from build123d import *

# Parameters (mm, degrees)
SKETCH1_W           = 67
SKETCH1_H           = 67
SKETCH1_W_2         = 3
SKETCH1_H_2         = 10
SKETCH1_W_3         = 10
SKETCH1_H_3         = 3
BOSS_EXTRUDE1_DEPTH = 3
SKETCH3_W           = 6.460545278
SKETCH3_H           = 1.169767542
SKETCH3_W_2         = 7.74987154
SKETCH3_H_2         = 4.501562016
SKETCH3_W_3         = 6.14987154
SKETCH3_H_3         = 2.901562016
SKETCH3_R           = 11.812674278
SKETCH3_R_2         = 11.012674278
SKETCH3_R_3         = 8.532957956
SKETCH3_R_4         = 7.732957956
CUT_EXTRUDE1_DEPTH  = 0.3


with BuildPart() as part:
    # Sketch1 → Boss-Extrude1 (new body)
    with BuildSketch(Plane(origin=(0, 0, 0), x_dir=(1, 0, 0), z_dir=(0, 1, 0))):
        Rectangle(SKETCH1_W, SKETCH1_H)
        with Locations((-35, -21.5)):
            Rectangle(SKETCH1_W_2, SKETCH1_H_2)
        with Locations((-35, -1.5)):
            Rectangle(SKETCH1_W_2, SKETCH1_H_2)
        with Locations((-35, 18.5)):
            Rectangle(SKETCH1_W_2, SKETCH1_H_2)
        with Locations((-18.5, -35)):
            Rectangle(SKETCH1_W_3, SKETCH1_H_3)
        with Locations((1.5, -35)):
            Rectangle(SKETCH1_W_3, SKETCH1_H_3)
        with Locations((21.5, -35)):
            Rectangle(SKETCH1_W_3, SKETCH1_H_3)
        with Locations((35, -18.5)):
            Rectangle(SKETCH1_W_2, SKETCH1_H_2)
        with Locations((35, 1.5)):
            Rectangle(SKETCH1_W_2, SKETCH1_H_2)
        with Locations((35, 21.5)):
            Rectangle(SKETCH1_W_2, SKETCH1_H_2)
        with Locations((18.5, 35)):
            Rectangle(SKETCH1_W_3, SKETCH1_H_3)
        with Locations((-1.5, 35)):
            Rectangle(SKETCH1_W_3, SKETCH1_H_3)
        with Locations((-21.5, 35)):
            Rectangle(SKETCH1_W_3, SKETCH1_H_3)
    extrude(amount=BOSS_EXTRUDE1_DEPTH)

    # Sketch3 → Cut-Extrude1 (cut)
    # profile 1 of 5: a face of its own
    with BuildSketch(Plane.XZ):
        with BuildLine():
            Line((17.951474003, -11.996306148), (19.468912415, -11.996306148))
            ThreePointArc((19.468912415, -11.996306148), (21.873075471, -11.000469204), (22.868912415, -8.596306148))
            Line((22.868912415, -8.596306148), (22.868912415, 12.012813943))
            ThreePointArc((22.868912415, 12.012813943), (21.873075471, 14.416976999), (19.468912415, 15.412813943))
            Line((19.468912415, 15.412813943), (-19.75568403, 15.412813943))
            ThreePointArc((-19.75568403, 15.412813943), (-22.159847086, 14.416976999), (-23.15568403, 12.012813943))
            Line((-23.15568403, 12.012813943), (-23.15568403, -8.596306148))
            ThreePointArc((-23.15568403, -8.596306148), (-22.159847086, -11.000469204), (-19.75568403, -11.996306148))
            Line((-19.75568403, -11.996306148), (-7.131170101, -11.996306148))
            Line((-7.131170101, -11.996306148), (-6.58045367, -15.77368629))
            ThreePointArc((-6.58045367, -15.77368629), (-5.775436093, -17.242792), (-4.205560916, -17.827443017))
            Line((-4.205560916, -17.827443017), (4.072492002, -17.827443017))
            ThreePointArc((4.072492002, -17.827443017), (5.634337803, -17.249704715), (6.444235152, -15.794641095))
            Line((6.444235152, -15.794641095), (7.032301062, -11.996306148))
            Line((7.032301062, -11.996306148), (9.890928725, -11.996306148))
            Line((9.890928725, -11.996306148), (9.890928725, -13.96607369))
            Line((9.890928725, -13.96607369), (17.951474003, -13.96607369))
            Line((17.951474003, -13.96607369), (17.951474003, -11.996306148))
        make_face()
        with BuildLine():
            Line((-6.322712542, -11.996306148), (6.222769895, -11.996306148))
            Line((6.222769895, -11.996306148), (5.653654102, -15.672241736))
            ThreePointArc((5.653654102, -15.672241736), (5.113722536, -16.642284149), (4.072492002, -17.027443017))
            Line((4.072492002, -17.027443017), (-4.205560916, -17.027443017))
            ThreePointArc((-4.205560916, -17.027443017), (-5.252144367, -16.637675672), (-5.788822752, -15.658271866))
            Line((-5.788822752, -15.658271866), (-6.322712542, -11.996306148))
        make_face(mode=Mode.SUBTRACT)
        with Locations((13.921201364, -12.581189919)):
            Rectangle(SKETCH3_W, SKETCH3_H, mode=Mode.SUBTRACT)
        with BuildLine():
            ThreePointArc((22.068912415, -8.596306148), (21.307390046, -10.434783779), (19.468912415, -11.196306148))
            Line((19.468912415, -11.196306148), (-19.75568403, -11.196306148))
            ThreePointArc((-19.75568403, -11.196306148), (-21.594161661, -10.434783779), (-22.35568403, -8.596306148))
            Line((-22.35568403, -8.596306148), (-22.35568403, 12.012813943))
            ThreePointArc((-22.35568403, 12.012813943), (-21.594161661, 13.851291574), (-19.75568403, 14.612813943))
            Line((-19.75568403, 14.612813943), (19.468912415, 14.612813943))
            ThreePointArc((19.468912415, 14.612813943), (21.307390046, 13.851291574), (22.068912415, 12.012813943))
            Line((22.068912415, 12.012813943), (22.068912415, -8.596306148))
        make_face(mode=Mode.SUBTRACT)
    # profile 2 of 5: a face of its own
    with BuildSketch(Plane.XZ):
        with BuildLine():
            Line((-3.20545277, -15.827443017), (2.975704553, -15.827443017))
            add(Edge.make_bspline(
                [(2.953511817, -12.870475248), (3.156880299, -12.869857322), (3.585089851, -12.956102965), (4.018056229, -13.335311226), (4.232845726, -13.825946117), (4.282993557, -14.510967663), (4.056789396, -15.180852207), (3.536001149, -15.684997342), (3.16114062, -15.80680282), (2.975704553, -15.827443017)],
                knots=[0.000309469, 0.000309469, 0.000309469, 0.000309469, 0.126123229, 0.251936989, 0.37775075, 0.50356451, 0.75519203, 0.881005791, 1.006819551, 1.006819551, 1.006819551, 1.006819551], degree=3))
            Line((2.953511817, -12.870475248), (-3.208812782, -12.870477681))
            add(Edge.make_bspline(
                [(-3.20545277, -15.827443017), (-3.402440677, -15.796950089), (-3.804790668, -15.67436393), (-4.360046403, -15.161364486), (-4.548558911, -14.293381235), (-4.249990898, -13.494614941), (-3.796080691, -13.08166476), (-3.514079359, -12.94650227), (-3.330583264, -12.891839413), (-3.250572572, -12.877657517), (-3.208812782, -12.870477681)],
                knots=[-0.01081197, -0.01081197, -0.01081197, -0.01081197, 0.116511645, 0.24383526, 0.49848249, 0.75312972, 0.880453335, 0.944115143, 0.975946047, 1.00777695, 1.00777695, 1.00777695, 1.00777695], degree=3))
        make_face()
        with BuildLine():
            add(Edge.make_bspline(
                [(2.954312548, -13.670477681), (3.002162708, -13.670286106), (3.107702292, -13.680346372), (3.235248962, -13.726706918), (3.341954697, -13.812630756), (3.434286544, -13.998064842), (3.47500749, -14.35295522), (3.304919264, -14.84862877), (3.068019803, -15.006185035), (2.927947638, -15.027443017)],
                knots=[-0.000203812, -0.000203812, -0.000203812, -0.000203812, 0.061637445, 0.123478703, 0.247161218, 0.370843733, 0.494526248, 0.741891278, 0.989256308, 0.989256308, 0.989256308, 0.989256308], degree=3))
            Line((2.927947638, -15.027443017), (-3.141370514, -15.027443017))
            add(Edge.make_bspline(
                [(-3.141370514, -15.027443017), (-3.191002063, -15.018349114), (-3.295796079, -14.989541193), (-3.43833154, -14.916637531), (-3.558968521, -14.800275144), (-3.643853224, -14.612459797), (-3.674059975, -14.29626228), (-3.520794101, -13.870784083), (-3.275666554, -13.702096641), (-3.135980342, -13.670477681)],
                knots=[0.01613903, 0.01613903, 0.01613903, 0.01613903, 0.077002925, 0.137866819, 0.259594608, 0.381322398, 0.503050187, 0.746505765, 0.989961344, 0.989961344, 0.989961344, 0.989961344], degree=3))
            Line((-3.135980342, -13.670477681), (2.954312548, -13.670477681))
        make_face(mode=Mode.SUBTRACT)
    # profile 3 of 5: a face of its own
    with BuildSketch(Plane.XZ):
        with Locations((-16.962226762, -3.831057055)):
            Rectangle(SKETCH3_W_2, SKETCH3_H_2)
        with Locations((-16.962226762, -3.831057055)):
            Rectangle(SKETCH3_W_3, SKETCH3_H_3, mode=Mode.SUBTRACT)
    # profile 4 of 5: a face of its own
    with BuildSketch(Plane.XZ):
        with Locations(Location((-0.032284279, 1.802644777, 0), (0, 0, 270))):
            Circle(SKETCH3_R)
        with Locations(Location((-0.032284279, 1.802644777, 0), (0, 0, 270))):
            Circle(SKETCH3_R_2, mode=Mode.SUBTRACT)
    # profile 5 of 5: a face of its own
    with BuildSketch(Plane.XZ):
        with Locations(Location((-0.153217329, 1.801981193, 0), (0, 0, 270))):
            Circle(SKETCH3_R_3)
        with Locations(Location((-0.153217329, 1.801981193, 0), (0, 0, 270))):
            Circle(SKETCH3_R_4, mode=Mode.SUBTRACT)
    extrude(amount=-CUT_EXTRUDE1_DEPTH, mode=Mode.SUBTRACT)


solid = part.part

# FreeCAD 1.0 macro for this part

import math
import FreeCAD as App
import Part
import Sketcher

doc = App.newDocument("Part")
body = doc.addObject("PartDesign::Body", "Body")

sketch1 = doc.addObject("Sketcher::SketchObject", "Sketch")
body.addObject(sketch1)
sketch1.AttachmentSupport = (doc.XZ_Plane, [""])
sketch1.MapMode = "FlatFace"
sketch1.addGeometry([
    Part.LineSegment(App.Vector(-33.5, 26.5, 0), App.Vector(-33.5, 33.5, 0)),
    Part.LineSegment(App.Vector(-33.5, 33.5, 0), App.Vector(-23.5, 33.5, 0)),
    Part.LineSegment(App.Vector(-23.5, 33.5, 0), App.Vector(-23.5, 36.5, 0)),
    Part.LineSegment(App.Vector(-23.5, 36.5, 0), App.Vector(-13.5, 36.5, 0)),
    Part.LineSegment(App.Vector(-13.5, 36.5, 0), App.Vector(-13.5, 33.5, 0)),
    Part.LineSegment(App.Vector(-13.5, 33.5, 0), App.Vector(-3.5, 33.5, 0)),
    Part.LineSegment(App.Vector(-3.5, 33.5, 0), App.Vector(-3.5, 36.5, 0)),
    Part.LineSegment(App.Vector(-3.5, 36.5, 0), App.Vector(6.5, 36.5, 0)),
    Part.LineSegment(App.Vector(6.5, 36.5, 0), App.Vector(6.5, 33.5, 0)),
    Part.LineSegment(App.Vector(6.5, 33.5, 0), App.Vector(16.5, 33.5, 0)),
    Part.LineSegment(App.Vector(16.5, 33.5, 0), App.Vector(16.5, 36.5, 0)),
    Part.LineSegment(App.Vector(16.5, 36.5, 0), App.Vector(26.5, 36.5, 0)),
    Part.LineSegment(App.Vector(26.5, 36.5, 0), App.Vector(26.5, 33.5, 0)),
    Part.LineSegment(App.Vector(26.5, 33.5, 0), App.Vector(33.5, 33.5, 0)),
    Part.LineSegment(App.Vector(33.5, 33.5, 0), App.Vector(33.5, 23.5, 0)),
    Part.LineSegment(App.Vector(33.5, 23.5, 0), App.Vector(36.5, 23.5, 0)),
    Part.LineSegment(App.Vector(36.5, 23.5, 0), App.Vector(36.5, 13.5, 0)),
    Part.LineSegment(App.Vector(36.5, 13.5, 0), App.Vector(33.5, 13.5, 0)),
    Part.LineSegment(App.Vector(33.5, 13.5, 0), App.Vector(33.5, 3.5, 0)),
    Part.LineSegment(App.Vector(33.5, 3.5, 0), App.Vector(36.5, 3.5, 0)),
    Part.LineSegment(App.Vector(36.5, 3.5, 0), App.Vector(36.5, -6.5, 0)),
    Part.LineSegment(App.Vector(36.5, -6.5, 0), App.Vector(33.5, -6.5, 0)),
    Part.LineSegment(App.Vector(33.5, -6.5, 0), App.Vector(33.5, -16.5, 0)),
    Part.LineSegment(App.Vector(33.5, -16.5, 0), App.Vector(36.5, -16.5, 0)),
    Part.LineSegment(App.Vector(36.5, -16.5, 0), App.Vector(36.5, -26.5, 0)),
    Part.LineSegment(App.Vector(36.5, -26.5, 0), App.Vector(33.5, -26.5, 0)),
    Part.LineSegment(App.Vector(33.5, -26.5, 0), App.Vector(33.5, -33.5, 0)),
    Part.LineSegment(App.Vector(33.5, -33.5, 0), App.Vector(23.5, -33.5, 0)),
    Part.LineSegment(App.Vector(23.5, -33.5, 0), App.Vector(23.5, -36.5, 0)),
    Part.LineSegment(App.Vector(23.5, -36.5, 0), App.Vector(13.5, -36.5, 0)),
    Part.LineSegment(App.Vector(13.5, -36.5, 0), App.Vector(13.5, -33.5, 0)),
    Part.LineSegment(App.Vector(13.5, -33.5, 0), App.Vector(3.5, -33.5, 0)),
    Part.LineSegment(App.Vector(3.5, -33.5, 0), App.Vector(3.5, -36.5, 0)),
    Part.LineSegment(App.Vector(3.5, -36.5, 0), App.Vector(-6.5, -36.5, 0)),
    Part.LineSegment(App.Vector(-6.5, -36.5, 0), App.Vector(-6.5, -33.5, 0)),
    Part.LineSegment(App.Vector(-6.5, -33.5, 0), App.Vector(-16.5, -33.5, 0)),
    Part.LineSegment(App.Vector(-16.5, -33.5, 0), App.Vector(-16.5, -36.5, 0)),
    Part.LineSegment(App.Vector(-16.5, -36.5, 0), App.Vector(-26.5, -36.5, 0)),
    Part.LineSegment(App.Vector(-26.5, -36.5, 0), App.Vector(-26.5, -33.5, 0)),
    Part.LineSegment(App.Vector(-26.5, -33.5, 0), App.Vector(-33.5, -33.5, 0)),
    Part.LineSegment(App.Vector(-33.5, -33.5, 0), App.Vector(-33.5, -23.5, 0)),
    Part.LineSegment(App.Vector(-33.5, -23.5, 0), App.Vector(-36.5, -23.5, 0)),
    Part.LineSegment(App.Vector(-36.5, -23.5, 0), App.Vector(-36.5, -13.5, 0)),
    Part.LineSegment(App.Vector(-36.5, -13.5, 0), App.Vector(-33.5, -13.5, 0)),
    Part.LineSegment(App.Vector(-33.5, -13.5, 0), App.Vector(-33.5, -3.5, 0)),
    Part.LineSegment(App.Vector(-33.5, -3.5, 0), App.Vector(-36.5, -3.5, 0)),
    Part.LineSegment(App.Vector(-36.5, -3.5, 0), App.Vector(-36.5, 6.5, 0)),
    Part.LineSegment(App.Vector(-36.5, 6.5, 0), App.Vector(-33.5, 6.5, 0)),
    Part.LineSegment(App.Vector(-33.5, 6.5, 0), App.Vector(-33.5, 16.5, 0)),
    Part.LineSegment(App.Vector(-33.5, 16.5, 0), App.Vector(-36.5, 16.5, 0)),
    Part.LineSegment(App.Vector(-36.5, 16.5, 0), App.Vector(-36.5, 26.5, 0)),
    Part.LineSegment(App.Vector(-36.5, 26.5, 0), App.Vector(-33.5, 26.5, 0)),
], False)
sketch1.addConstraint([
    Sketcher.Constraint("Coincident", 0, 2, 1, 1),
    Sketcher.Constraint("Coincident", 1, 2, 2, 1),
    Sketcher.Constraint("Coincident", 2, 2, 3, 1),
    Sketcher.Constraint("Coincident", 3, 2, 4, 1),
    Sketcher.Constraint("Coincident", 4, 2, 5, 1),
    Sketcher.Constraint("Coincident", 5, 2, 6, 1),
    Sketcher.Constraint("Coincident", 6, 2, 7, 1),
    Sketcher.Constraint("Coincident", 7, 2, 8, 1),
    Sketcher.Constraint("Coincident", 8, 2, 9, 1),
    Sketcher.Constraint("Coincident", 9, 2, 10, 1),
    Sketcher.Constraint("Coincident", 10, 2, 11, 1),
    Sketcher.Constraint("Coincident", 11, 2, 12, 1),
    Sketcher.Constraint("Coincident", 12, 2, 13, 1),
    Sketcher.Constraint("Coincident", 13, 2, 14, 1),
    Sketcher.Constraint("Coincident", 14, 2, 15, 1),
    Sketcher.Constraint("Coincident", 15, 2, 16, 1),
    Sketcher.Constraint("Coincident", 16, 2, 17, 1),
    Sketcher.Constraint("Coincident", 17, 2, 18, 1),
    Sketcher.Constraint("Coincident", 18, 2, 19, 1),
    Sketcher.Constraint("Coincident", 19, 2, 20, 1),
    Sketcher.Constraint("Coincident", 20, 2, 21, 1),
    Sketcher.Constraint("Coincident", 21, 2, 22, 1),
    Sketcher.Constraint("Coincident", 22, 2, 23, 1),
    Sketcher.Constraint("Coincident", 23, 2, 24, 1),
    Sketcher.Constraint("Coincident", 24, 2, 25, 1),
    Sketcher.Constraint("Coincident", 25, 2, 26, 1),
    Sketcher.Constraint("Coincident", 26, 2, 27, 1),
    Sketcher.Constraint("Coincident", 27, 2, 28, 1),
    Sketcher.Constraint("Coincident", 28, 2, 29, 1),
    Sketcher.Constraint("Coincident", 29, 2, 30, 1),
    Sketcher.Constraint("Coincident", 30, 2, 31, 1),
    Sketcher.Constraint("Coincident", 31, 2, 32, 1),
    Sketcher.Constraint("Coincident", 32, 2, 33, 1),
    Sketcher.Constraint("Coincident", 33, 2, 34, 1),
    Sketcher.Constraint("Coincident", 34, 2, 35, 1),
    Sketcher.Constraint("Coincident", 35, 2, 36, 1),
    Sketcher.Constraint("Coincident", 36, 2, 37, 1),
    Sketcher.Constraint("Coincident", 37, 2, 38, 1),
    Sketcher.Constraint("Coincident", 38, 2, 39, 1),
    Sketcher.Constraint("Coincident", 39, 2, 40, 1),
    Sketcher.Constraint("Coincident", 40, 2, 41, 1),
    Sketcher.Constraint("Coincident", 41, 2, 42, 1),
    Sketcher.Constraint("Coincident", 42, 2, 43, 1),
    Sketcher.Constraint("Coincident", 43, 2, 44, 1),
    Sketcher.Constraint("Coincident", 44, 2, 45, 1),
    Sketcher.Constraint("Coincident", 45, 2, 46, 1),
    Sketcher.Constraint("Coincident", 46, 2, 47, 1),
    Sketcher.Constraint("Coincident", 47, 2, 48, 1),
    Sketcher.Constraint("Coincident", 48, 2, 49, 1),
    Sketcher.Constraint("Coincident", 49, 2, 50, 1),
    Sketcher.Constraint("Coincident", 50, 2, 51, 1),
    Sketcher.Constraint("Coincident", 51, 2, 0, 1),
    Sketcher.Constraint("Vertical", 0),
    Sketcher.Constraint("Horizontal", 1),
    Sketcher.Constraint("Vertical", 2),
    Sketcher.Constraint("Horizontal", 3),
    Sketcher.Constraint("Vertical", 4),
    Sketcher.Constraint("Horizontal", 5),
    Sketcher.Constraint("Vertical", 6),
    Sketcher.Constraint("Horizontal", 7),
    Sketcher.Constraint("Vertical", 8),
    Sketcher.Constraint("Horizontal", 9),
    Sketcher.Constraint("Vertical", 10),
    Sketcher.Constraint("Horizontal", 11),
    Sketcher.Constraint("Vertical", 12),
    Sketcher.Constraint("Horizontal", 13),
    Sketcher.Constraint("Vertical", 14),
    Sketcher.Constraint("Horizontal", 15),
    Sketcher.Constraint("Vertical", 16),
    Sketcher.Constraint("Horizontal", 17),
    Sketcher.Constraint("Vertical", 18),
    Sketcher.Constraint("Horizontal", 19),
    Sketcher.Constraint("Vertical", 20),
    Sketcher.Constraint("Horizontal", 21),
    Sketcher.Constraint("Vertical", 22),
    Sketcher.Constraint("Horizontal", 23),
    Sketcher.Constraint("Vertical", 24),
    Sketcher.Constraint("Horizontal", 25),
    Sketcher.Constraint("Vertical", 26),
    Sketcher.Constraint("Horizontal", 27),
    Sketcher.Constraint("Vertical", 28),
    Sketcher.Constraint("Horizontal", 29),
    Sketcher.Constraint("Vertical", 30),
    Sketcher.Constraint("Horizontal", 31),
    Sketcher.Constraint("Vertical", 32),
    Sketcher.Constraint("Horizontal", 33),
    Sketcher.Constraint("Vertical", 34),
    Sketcher.Constraint("Horizontal", 35),
    Sketcher.Constraint("Vertical", 36),
    Sketcher.Constraint("Horizontal", 37),
    Sketcher.Constraint("Vertical", 38),
    Sketcher.Constraint("Horizontal", 39),
    Sketcher.Constraint("Vertical", 40),
    Sketcher.Constraint("Horizontal", 41),
    Sketcher.Constraint("Vertical", 42),
    Sketcher.Constraint("Horizontal", 43),
    Sketcher.Constraint("Vertical", 44),
    Sketcher.Constraint("Horizontal", 45),
    Sketcher.Constraint("Vertical", 46),
    Sketcher.Constraint("Horizontal", 47),
    Sketcher.Constraint("Vertical", 48),
    Sketcher.Constraint("Horizontal", 49),
    Sketcher.Constraint("Vertical", 50),
    Sketcher.Constraint("Horizontal", 51),
    Sketcher.Constraint("Symmetric", 0, 2, 26, 2, -1, 1),
    Sketcher.Constraint("Symmetric", 2, 2, 28, 2, -1, 1),
    Sketcher.Constraint("Symmetric", 4, 2, 30, 2, -1, 1),
    Sketcher.Constraint("Symmetric", 6, 2, 32, 2, -1, 1),
    Sketcher.Constraint("Symmetric", 8, 2, 34, 2, -1, 1),
    Sketcher.Constraint("Symmetric", 10, 2, 36, 2, -1, 1),
    Sketcher.Constraint("Symmetric", 12, 2, 38, 2, -1, 1),
    Sketcher.Constraint("Symmetric", 14, 2, 40, 2, -1, 1),
    Sketcher.Constraint("Symmetric", 16, 2, 42, 2, -1, 1),
    Sketcher.Constraint("Symmetric", 18, 2, 44, 2, -1, 1),
    Sketcher.Constraint("Symmetric", 20, 2, 46, 2, -1, 1),
    Sketcher.Constraint("Symmetric", 22, 2, 48, 2, -1, 1),
    Sketcher.Constraint("Symmetric", 24, 2, 50, 2, -1, 1),
    Sketcher.Constraint("Symmetric", 0, 2, 13, 2, -2),
    Sketcher.Constraint("Horizontal", 1, 2, 4, 2),
    Sketcher.Constraint("Horizontal", 3, 2, 6, 2),
    Sketcher.Constraint("Horizontal", 5, 2, 8, 2),
    Sketcher.Constraint("Horizontal", 7, 2, 10, 2),
    Sketcher.Constraint("Vertical", 14, 2, 17, 2),
    Sketcher.Constraint("Vertical", 16, 2, 19, 2),
    Sketcher.Constraint("Vertical", 18, 2, 21, 2),
    Sketcher.Constraint("Vertical", 20, 2, 23, 2),
    Sketcher.Constraint("Equal", 1, 3),
    Sketcher.Constraint("Equal", 3, 5),
    Sketcher.Constraint("Equal", 5, 7),
    Sketcher.Constraint("Equal", 7, 9),
    Sketcher.Constraint("Equal", 9, 11),
    Sketcher.Constraint("Equal", 39, 0),
    Sketcher.Constraint("Equal", 51, 2),
    Sketcher.Constraint("Equal", 37, 14),
    Sketcher.Constraint("Equal", 14, 16),
    Sketcher.Constraint("Equal", 16, 18),
    Sketcher.Constraint("Equal", 18, 20),
    Sketcher.Constraint("Equal", 20, 22),
    Sketcher.Constraint("Equal", 22, 24),
    Sketcher.Constraint("DistanceX", 1, 1, 1, 2, 10.0),
    Sketcher.Constraint("DistanceX", 13, 1, 13, 2, 7.0),
    Sketcher.Constraint("DistanceX", 15, 1, 15, 2, 3.0),
])
pad1 = doc.addObject("PartDesign::Pad", "Pad")
body.addObject(pad1)
pad1.Profile = sketch1
pad1.Length = 3
pad1.Reversed = True

sketch2 = doc.addObject("Sketcher::SketchObject", "Sketch001")
body.addObject(sketch2)
sketch2.AttachmentSupport = (doc.XZ_Plane, [""])
sketch2.MapMode = "FlatFace"
sketch2.addGeometry([
    Part.LineSegment(App.Vector(17.951474, -11.996306, 0), App.Vector(19.468912, -11.996306, 0)),
    Part.ArcOfCircle(Part.Circle(App.Vector(19.468912, -8.596306, 0), App.Vector(0, 0, 1), 3.4), math.radians(-90), math.radians(0)),
    Part.LineSegment(App.Vector(22.868912, -8.596306, 0), App.Vector(22.868912, 12.012814, 0)),
    Part.ArcOfCircle(Part.Circle(App.Vector(19.468912, 12.012814, 0), App.Vector(0, 0, 1), 3.4), math.radians(0), math.radians(90)),
    Part.LineSegment(App.Vector(19.468912, 15.412814, 0), App.Vector(-19.755684, 15.412814, 0)),
    Part.ArcOfCircle(Part.Circle(App.Vector(-19.755684, 12.012814, 0), App.Vector(0, 0, 1), 3.4), math.radians(90), math.radians(180)),
    Part.LineSegment(App.Vector(-23.155684, 12.012814, 0), App.Vector(-23.155684, -8.596306, 0)),
    Part.ArcOfCircle(Part.Circle(App.Vector(-19.755684, -8.596306, 0), App.Vector(0, 0, 1), 3.4), math.radians(180), math.radians(270)),
    Part.LineSegment(App.Vector(-19.755684, -11.996306, 0), App.Vector(-7.13117, -11.996306, 0)),
    Part.LineSegment(App.Vector(-7.13117, -11.996306, 0), App.Vector(-6.580454, -15.773686, 0)),
    Part.ArcOfCircle(Part.Circle(App.Vector(-4.205561, -15.427443, 0), App.Vector(0, 0, 1), 2.4), math.radians(-171.705105), math.radians(-90)),
    Part.LineSegment(App.Vector(-4.205561, -17.827443, 0), App.Vector(4.072492, -17.827443, 0)),
    Part.ArcOfCircle(Part.Circle(App.Vector(4.072492, -15.427443, 0), App.Vector(0, 0, 1), 2.4), math.radians(-90), math.radians(-8.800775)),
    Part.LineSegment(App.Vector(6.444235, -15.794641, 0), App.Vector(7.032301, -11.996306, 0)),
    Part.LineSegment(App.Vector(7.032301, -11.996306, 0), App.Vector(9.890929, -11.996306, 0)),
    Part.LineSegment(App.Vector(9.890929, -11.996306, 0), App.Vector(9.890929, -13.966074, 0)),
    Part.LineSegment(App.Vector(9.890929, -13.966074, 0), App.Vector(17.951474, -13.966074, 0)),
    Part.LineSegment(App.Vector(17.951474, -13.966074, 0), App.Vector(17.951474, -11.996306, 0)),
    Part.LineSegment(App.Vector(-5.788823, -15.658272, 0), App.Vector(-6.322713, -11.996306, 0)),
    Part.LineSegment(App.Vector(-6.322713, -11.996306, 0), App.Vector(6.22277, -11.996306, 0)),
    Part.LineSegment(App.Vector(6.22277, -11.996306, 0), App.Vector(5.653654, -15.672242, 0)),
    Part.ArcOfCircle(Part.Circle(App.Vector(4.072492, -15.427443, 0), App.Vector(0, 0, 1), 1.6), math.radians(-90), math.radians(-8.800775)),
    Part.LineSegment(App.Vector(4.072492, -17.027443, 0), App.Vector(-4.205561, -17.027443, 0)),
    Part.ArcOfCircle(Part.Circle(App.Vector(-4.205561, -15.427443, 0), App.Vector(0, 0, 1), 1.6), math.radians(-171.705105), math.radians(-90)),
    Part.LineSegment(App.Vector(17.151474, -13.166074, 0), App.Vector(10.690929, -13.166074, 0)),
    Part.LineSegment(App.Vector(10.690929, -13.166074, 0), App.Vector(10.690929, -11.996306, 0)),
    Part.LineSegment(App.Vector(10.690929, -11.996306, 0), App.Vector(17.151474, -11.996306, 0)),
    Part.LineSegment(App.Vector(17.151474, -11.996306, 0), App.Vector(17.151474, -13.166074, 0)),
    Part.LineSegment(App.Vector(22.068912, 12.012814, 0), App.Vector(22.068912, -8.596306, 0)),
    Part.ArcOfCircle(Part.Circle(App.Vector(19.468912, -8.596306, 0), App.Vector(0, 0, 1), 2.6), math.radians(-90), math.radians(0)),
    Part.LineSegment(App.Vector(19.468912, -11.196306, 0), App.Vector(-19.755684, -11.196306, 0)),
    Part.ArcOfCircle(Part.Circle(App.Vector(-19.755684, -8.596306, 0), App.Vector(0, 0, 1), 2.6), math.radians(180), math.radians(270)),
    Part.LineSegment(App.Vector(-22.355684, -8.596306, 0), App.Vector(-22.355684, 12.012814, 0)),
    Part.ArcOfCircle(Part.Circle(App.Vector(-19.755684, 12.012814, 0), App.Vector(0, 0, 1), 2.6), math.radians(90), math.radians(180)),
    Part.LineSegment(App.Vector(-19.755684, 14.612814, 0), App.Vector(19.468912, 14.612814, 0)),
    Part.ArcOfCircle(Part.Circle(App.Vector(19.468912, 12.012814, 0), App.Vector(0, 0, 1), 2.6), math.radians(0), math.radians(90)),
    Part.LineSegment(App.Vector(-3.205453, -15.827443, 0), App.Vector(2.975705, -15.827443, 0)),
    Part.BSplineCurve([App.Vector(2.953512, -12.870475, 0), App.Vector(3.15688, -12.869857, 0), App.Vector(3.58509, -12.956103, 0), App.Vector(4.018056, -13.335311, 0), App.Vector(4.232846, -13.825946, 0), App.Vector(4.282994, -14.510968, 0), App.Vector(4.056789, -15.180852, 0), App.Vector(3.536001, -15.684997, 0), App.Vector(3.161141, -15.806803, 0), App.Vector(2.975705, -15.827443, 0)], [4, 1, 1, 1, 1, 1, 1, 4], [0.000309469, 0.126123229, 0.251936989, 0.37775075, 0.50356451, 0.75519203, 0.881005791, 1.006819551], False, 3, [1, 1, 1, 1, 1, 1, 1, 1, 1, 1], False),
    Part.LineSegment(App.Vector(2.953512, -12.870475, 0), App.Vector(-3.208813, -12.870478, 0)),
    Part.BSplineCurve([App.Vector(-3.205453, -15.827443, 0), App.Vector(-3.402441, -15.79695, 0), App.Vector(-3.804791, -15.674364, 0), App.Vector(-4.360046, -15.161364, 0), App.Vector(-4.548559, -14.293381, 0), App.Vector(-4.249991, -13.494615, 0), App.Vector(-3.796081, -13.081665, 0), App.Vector(-3.514079, -12.946502, 0), App.Vector(-3.330583, -12.891839, 0), App.Vector(-3.250573, -12.877658, 0), App.Vector(-3.208813, -12.870478, 0)], [4, 1, 1, 1, 1, 1, 1, 1, 4], [-0.01081197, 0.116511645, 0.24383526, 0.49848249, 0.75312972, 0.880453335, 0.944115143, 0.975946047, 1.00777695], False, 3, [1, 1, 1, 1, 1, 1, 1, 1, 1, 1, 1], False),
    Part.LineSegment(App.Vector(-3.13598, -13.670478, 0), App.Vector(2.954313, -13.670478, 0)),
    Part.BSplineCurve([App.Vector(2.954313, -13.670478, 0), App.Vector(3.002163, -13.670286, 0), App.Vector(3.107702, -13.680346, 0), App.Vector(3.235249, -13.726707, 0), App.Vector(3.341955, -13.812631, 0), App.Vector(3.434287, -13.998065, 0), App.Vector(3.475007, -14.352955, 0), App.Vector(3.304919, -14.848629, 0), App.Vector(3.06802, -15.006185, 0), App.Vector(2.927948, -15.027443, 0)], [4, 1, 1, 1, 1, 1, 1, 4], [-0.000203812, 0.061637445, 0.123478703, 0.247161218, 0.370843733, 0.494526248, 0.741891278, 0.989256308], False, 3, [1, 1, 1, 1, 1, 1, 1, 1, 1, 1], False),
    Part.LineSegment(App.Vector(2.927948, -15.027443, 0), App.Vector(-3.141371, -15.027443, 0)),
    Part.BSplineCurve([App.Vector(-3.141371, -15.027443, 0), App.Vector(-3.191002, -15.018349, 0), App.Vector(-3.295796, -14.989541, 0), App.Vector(-3.438332, -14.916638, 0), App.Vector(-3.558969, -14.800275, 0), App.Vector(-3.643853, -14.61246, 0), App.Vector(-3.67406, -14.296262, 0), App.Vector(-3.520794, -13.870784, 0), App.Vector(-3.275667, -13.702097, 0), App.Vector(-3.13598, -13.670478, 0)], [4, 1, 1, 1, 1, 1, 1, 4], [0.01613903, 0.077002925, 0.137866819, 0.259594608, 0.381322398, 0.503050187, 0.746505765, 0.989961344], False, 3, [1, 1, 1, 1, 1, 1, 1, 1, 1, 1], False),
    Part.LineSegment(App.Vector(-20.837163, -1.580276, 0), App.Vector(-20.837163, -6.081838, 0)),
    Part.LineSegment(App.Vector(-20.837163, -6.081838, 0), App.Vector(-13.087291, -6.081838, 0)),
    Part.LineSegment(App.Vector(-13.087291, -6.081838, 0), App.Vector(-13.087291, -1.580276, 0)),
    Part.LineSegment(App.Vector(-13.087291, -1.580276, 0), App.Vector(-20.837163, -1.580276, 0)),
    Part.LineSegment(App.Vector(-13.887291, -5.281838, 0), App.Vector(-20.037163, -5.281838, 0)),
    Part.LineSegment(App.Vector(-20.037163, -5.281838, 0), App.Vector(-20.037163, -2.380276, 0)),
    Part.LineSegment(App.Vector(-20.037163, -2.380276, 0), App.Vector(-13.887291, -2.380276, 0)),
    Part.LineSegment(App.Vector(-13.887291, -2.380276, 0), App.Vector(-13.887291, -5.281838, 0)),
    Part.Circle(App.Vector(-0.032284, 1.802645, 0), App.Vector(0, 0, 1), 11.812674),
    Part.Circle(App.Vector(-0.032284, 1.802645, 0), App.Vector(0, 0, 1), 11.012674),
    Part.Circle(App.Vector(-0.153217, 1.801981, 0), App.Vector(0, 0, 1), 8.532958),
    Part.Circle(App.Vector(-0.153217, 1.801981, 0), App.Vector(0, 0, 1), 7.732958),
], False)
sketch2.addConstraint([
    Sketcher.Constraint("Block", 37),
    Sketcher.Constraint("Block", 39),
    Sketcher.Constraint("Block", 41),
    Sketcher.Constraint("Block", 43),
    Sketcher.Constraint("Tangent", 0, 2, 1, 1),
    Sketcher.Constraint("Tangent", 1, 2, 2, 1),
    Sketcher.Constraint("Tangent", 2, 2, 3, 1),
    Sketcher.Constraint("Tangent", 3, 2, 4, 1),
    Sketcher.Constraint("Tangent", 4, 2, 5, 1),
    Sketcher.Constraint("Tangent", 5, 2, 6, 1),
    Sketcher.Constraint("Tangent", 6, 2, 7, 1),
    Sketcher.Constraint("Tangent", 7, 2, 8, 1),
    Sketcher.Constraint("Coincident", 8, 2, 9, 1),
    Sketcher.Constraint("Tangent", 9, 2, 10, 1),
    Sketcher.Constraint("Tangent", 10, 2, 11, 1),
    Sketcher.Constraint("Tangent", 11, 2, 12, 1),
    Sketcher.Constraint("Tangent", 12, 2, 13, 1),
    Sketcher.Constraint("Coincident", 13, 2, 14, 1),
    Sketcher.Constraint("Coincident", 14, 2, 15, 1),
    Sketcher.Constraint("Coincident", 15, 2, 16, 1),
    Sketcher.Constraint("Coincident", 16, 2, 17, 1),
    Sketcher.Constraint("Coincident", 17, 2, 0, 1),
    Sketcher.Constraint("Coincident", 18, 2, 19, 1),
    Sketcher.Constraint("Coincident", 19, 2, 20, 1),
    Sketcher.Constraint("Tangent", 20, 2, 21, 2),
    Sketcher.Constraint("Tangent", 21, 1, 22, 1),
    Sketcher.Constraint("Tangent", 22, 2, 23, 2),
    Sketcher.Constraint("Tangent", 23, 1, 18, 1),
    Sketcher.Constraint("Coincident", 24, 2, 25, 1),
    Sketcher.Constraint("Coincident", 25, 2, 26, 1),
    Sketcher.Constraint("Coincident", 26, 2, 27, 1),
    Sketcher.Constraint("Coincident", 27, 2, 24, 1),
    Sketcher.Constraint("Tangent", 28, 2, 29, 2),
    Sketcher.Constraint("Tangent", 29, 1, 30, 1),
    Sketcher.Constraint("Tangent", 30, 2, 31, 2),
    Sketcher.Constraint("Tangent", 31, 1, 32, 1),
    Sketcher.Constraint("Tangent", 32, 2, 33, 2),
    Sketcher.Constraint("Tangent", 33, 1, 34, 1),
    Sketcher.Constraint("Tangent", 34, 2, 35, 2),
    Sketcher.Constraint("Tangent", 35, 1, 28, 1),
    Sketcher.Constraint("Coincident", 36, 2, 37, 2),
    Sketcher.Constraint("Coincident", 37, 1, 38, 1),
    Sketcher.Constraint("Coincident", 38, 2, 39, 2),
    Sketcher.Constraint("Coincident", 39, 1, 36, 1),
    Sketcher.Constraint("Coincident", 40, 2, 41, 1),
    Sketcher.Constraint("Coincident", 41, 2, 42, 1),
    Sketcher.Constraint("Coincident", 42, 2, 43, 1),
    Sketcher.Constraint("Coincident", 43, 2, 40, 1),
    Sketcher.Constraint("Coincident", 44, 2, 45, 1),
    Sketcher.Constraint("Coincident", 45, 2, 46, 1),
    Sketcher.Constraint("Coincident", 46, 2, 47, 1),
    Sketcher.Constraint("Coincident", 47, 2, 44, 1),
    Sketcher.Constraint("Coincident", 48, 2, 49, 1),
    Sketcher.Constraint("Coincident", 49, 2, 50, 1),
    Sketcher.Constraint("Coincident", 50, 2, 51, 1),
    Sketcher.Constraint("Coincident", 51, 2, 48, 1),
    Sketcher.Constraint("Horizontal", 0),
    Sketcher.Constraint("Vertical", 2),
    Sketcher.Constraint("Horizontal", 4),
    Sketcher.Constraint("Vertical", 6),
    Sketcher.Constraint("Horizontal", 8),
    Sketcher.Constraint("Horizontal", 11),
    Sketcher.Constraint("Horizontal", 14),
    Sketcher.Constraint("Vertical", 15),
    Sketcher.Constraint("Horizontal", 16),
    Sketcher.Constraint("Vertical", 17),
    Sketcher.Constraint("Horizontal", 19),
    Sketcher.Constraint("Horizontal", 22),
    Sketcher.Constraint("Horizontal", 24),
    Sketcher.Constraint("Vertical", 25),
    Sketcher.Constraint("Horizontal", 26),
    Sketcher.Constraint("Vertical", 27),
    Sketcher.Constraint("Vertical", 28),
    Sketcher.Constraint("Horizontal", 30),
    Sketcher.Constraint("Vertical", 32),
    Sketcher.Constraint("Horizontal", 34),
    Sketcher.Constraint("Vertical", 44),
    Sketcher.Constraint("Horizontal", 45),
    Sketcher.Constraint("Vertical", 46),
    Sketcher.Constraint("Horizontal", 47),
    Sketcher.Constraint("Horizontal", 48),
    Sketcher.Constraint("Vertical", 49),
    Sketcher.Constraint("Horizontal", 50),
    Sketcher.Constraint("Vertical", 51),
    Sketcher.Constraint("Coincident", 21, 3, 12, 3),
    Sketcher.Constraint("Coincident", 23, 3, 10, 3),
    Sketcher.Constraint("Coincident", 29, 3, 1, 3),
    Sketcher.Constraint("Coincident", 31, 3, 7, 3),
    Sketcher.Constraint("Coincident", 33, 3, 5, 3),
    Sketcher.Constraint("Coincident", 35, 3, 3, 3),
    Sketcher.Constraint("Coincident", 53, 3, 52, 3),
    Sketcher.Constraint("Coincident", 55, 3, 54, 3),
    Sketcher.Constraint("Equal", 1, 3),
    Sketcher.Constraint("Equal", 3, 5),
    Sketcher.Constraint("Equal", 5, 7),
    Sketcher.Constraint("Equal", 10, 12),
    Sketcher.Constraint("Parallel", 9, 18),
    Sketcher.Constraint("Parallel", 13, 20),
    Sketcher.Constraint("Horizontal", 8, 2, 13, 2),
    Sketcher.Constraint("Horizontal", 17, 2, 18, 2),
    Sketcher.Constraint("Horizontal", 19, 2, 25, 2),
    Sketcher.Constraint("Radius", 1, 3.4),
    Sketcher.Constraint("Radius", 10, 2.4),
    Sketcher.Constraint("Radius", 21, 1.6),
    Sketcher.Constraint("Radius", 29, 2.6),
    Sketcher.Constraint("Diameter", 52, 23.625349),
    Sketcher.Constraint("Diameter", 53, 22.025349),
    Sketcher.Constraint("Diameter", 54, 17.065916),
    Sketcher.Constraint("Diameter", 55, 15.465916),
    Sketcher.Constraint("DistanceX", 0, 1, 0, 2, 1.517438),
    Sketcher.Constraint("DistanceX", 45, 1, 45, 2, 7.749872),
    Sketcher.Constraint("DistanceX", 48, 2, 48, 1, 6.149872),
    Sketcher.Constraint("DistanceY", 2, 1, 2, 2, 20.60912),
    Sketcher.Constraint("DistanceX", -1, 1, 13, 2, 7.032301),
    Sketcher.Constraint("Distance", 13, 3.843588),
    Sketcher.Constraint("Distance", 18, 3.70068),
    Sketcher.Constraint("Distance", 20, 3.719731),
    Sketcher.Constraint("DistanceX", 4, 2, 4, 1, 39.224596),
    Sketcher.Constraint("DistanceX", 8, 1, 8, 2, 12.624514),
    Sketcher.Constraint("DistanceX", 11, 1, 11, 2, 8.278053),
    Sketcher.Constraint("DistanceX", 14, 1, 14, 2, 2.858628),
    Sketcher.Constraint("DistanceX", 24, 2, 24, 1, 6.460545),
    Sketcher.Constraint("DistanceY", 15, 2, 15, 1, 1.969768),
    Sketcher.Constraint("DistanceY", 25, 1, 25, 2, 1.169768),
    Sketcher.Constraint("DistanceY", 44, 2, 44, 1, 4.501562),
    Sketcher.Constraint("DistanceY", 49, 1, 49, 2, 2.901562),
    Sketcher.Constraint("DistanceY", -1, 1, 54, 3, 1.801981),
    Sketcher.Constraint("DistanceY", 12, 2, -1, 1, 15.794641),
    Sketcher.Constraint("DistanceX", -1, 1, 24, 2, 10.690929),
    Sketcher.Constraint("DistanceY", 44, 2, -1, 1, 6.081838),
    Sketcher.Constraint("DistanceX", 45, 2, -1, 1, 13.087291),
    Sketcher.Constraint("DistanceY", 48, 2, -1, 1, 5.281838),
    Sketcher.Constraint("DistanceX", 50, 2, -1, 1, 13.887291),
    Sketcher.Constraint("DistanceX", 52, 3, -1, 1, 0.032284),
    Sketcher.Constraint("DistanceY", -1, 1, 52, 3, 1.802645),
    Sketcher.Constraint("DistanceX", 54, 3, -1, 1, 0.153217),
])
pocket1 = doc.addObject("PartDesign::Pocket", "Pocket")
body.addObject(pocket1)
pocket1.Profile = sketch2
pocket1.Length = 0.3

doc.recompute()
